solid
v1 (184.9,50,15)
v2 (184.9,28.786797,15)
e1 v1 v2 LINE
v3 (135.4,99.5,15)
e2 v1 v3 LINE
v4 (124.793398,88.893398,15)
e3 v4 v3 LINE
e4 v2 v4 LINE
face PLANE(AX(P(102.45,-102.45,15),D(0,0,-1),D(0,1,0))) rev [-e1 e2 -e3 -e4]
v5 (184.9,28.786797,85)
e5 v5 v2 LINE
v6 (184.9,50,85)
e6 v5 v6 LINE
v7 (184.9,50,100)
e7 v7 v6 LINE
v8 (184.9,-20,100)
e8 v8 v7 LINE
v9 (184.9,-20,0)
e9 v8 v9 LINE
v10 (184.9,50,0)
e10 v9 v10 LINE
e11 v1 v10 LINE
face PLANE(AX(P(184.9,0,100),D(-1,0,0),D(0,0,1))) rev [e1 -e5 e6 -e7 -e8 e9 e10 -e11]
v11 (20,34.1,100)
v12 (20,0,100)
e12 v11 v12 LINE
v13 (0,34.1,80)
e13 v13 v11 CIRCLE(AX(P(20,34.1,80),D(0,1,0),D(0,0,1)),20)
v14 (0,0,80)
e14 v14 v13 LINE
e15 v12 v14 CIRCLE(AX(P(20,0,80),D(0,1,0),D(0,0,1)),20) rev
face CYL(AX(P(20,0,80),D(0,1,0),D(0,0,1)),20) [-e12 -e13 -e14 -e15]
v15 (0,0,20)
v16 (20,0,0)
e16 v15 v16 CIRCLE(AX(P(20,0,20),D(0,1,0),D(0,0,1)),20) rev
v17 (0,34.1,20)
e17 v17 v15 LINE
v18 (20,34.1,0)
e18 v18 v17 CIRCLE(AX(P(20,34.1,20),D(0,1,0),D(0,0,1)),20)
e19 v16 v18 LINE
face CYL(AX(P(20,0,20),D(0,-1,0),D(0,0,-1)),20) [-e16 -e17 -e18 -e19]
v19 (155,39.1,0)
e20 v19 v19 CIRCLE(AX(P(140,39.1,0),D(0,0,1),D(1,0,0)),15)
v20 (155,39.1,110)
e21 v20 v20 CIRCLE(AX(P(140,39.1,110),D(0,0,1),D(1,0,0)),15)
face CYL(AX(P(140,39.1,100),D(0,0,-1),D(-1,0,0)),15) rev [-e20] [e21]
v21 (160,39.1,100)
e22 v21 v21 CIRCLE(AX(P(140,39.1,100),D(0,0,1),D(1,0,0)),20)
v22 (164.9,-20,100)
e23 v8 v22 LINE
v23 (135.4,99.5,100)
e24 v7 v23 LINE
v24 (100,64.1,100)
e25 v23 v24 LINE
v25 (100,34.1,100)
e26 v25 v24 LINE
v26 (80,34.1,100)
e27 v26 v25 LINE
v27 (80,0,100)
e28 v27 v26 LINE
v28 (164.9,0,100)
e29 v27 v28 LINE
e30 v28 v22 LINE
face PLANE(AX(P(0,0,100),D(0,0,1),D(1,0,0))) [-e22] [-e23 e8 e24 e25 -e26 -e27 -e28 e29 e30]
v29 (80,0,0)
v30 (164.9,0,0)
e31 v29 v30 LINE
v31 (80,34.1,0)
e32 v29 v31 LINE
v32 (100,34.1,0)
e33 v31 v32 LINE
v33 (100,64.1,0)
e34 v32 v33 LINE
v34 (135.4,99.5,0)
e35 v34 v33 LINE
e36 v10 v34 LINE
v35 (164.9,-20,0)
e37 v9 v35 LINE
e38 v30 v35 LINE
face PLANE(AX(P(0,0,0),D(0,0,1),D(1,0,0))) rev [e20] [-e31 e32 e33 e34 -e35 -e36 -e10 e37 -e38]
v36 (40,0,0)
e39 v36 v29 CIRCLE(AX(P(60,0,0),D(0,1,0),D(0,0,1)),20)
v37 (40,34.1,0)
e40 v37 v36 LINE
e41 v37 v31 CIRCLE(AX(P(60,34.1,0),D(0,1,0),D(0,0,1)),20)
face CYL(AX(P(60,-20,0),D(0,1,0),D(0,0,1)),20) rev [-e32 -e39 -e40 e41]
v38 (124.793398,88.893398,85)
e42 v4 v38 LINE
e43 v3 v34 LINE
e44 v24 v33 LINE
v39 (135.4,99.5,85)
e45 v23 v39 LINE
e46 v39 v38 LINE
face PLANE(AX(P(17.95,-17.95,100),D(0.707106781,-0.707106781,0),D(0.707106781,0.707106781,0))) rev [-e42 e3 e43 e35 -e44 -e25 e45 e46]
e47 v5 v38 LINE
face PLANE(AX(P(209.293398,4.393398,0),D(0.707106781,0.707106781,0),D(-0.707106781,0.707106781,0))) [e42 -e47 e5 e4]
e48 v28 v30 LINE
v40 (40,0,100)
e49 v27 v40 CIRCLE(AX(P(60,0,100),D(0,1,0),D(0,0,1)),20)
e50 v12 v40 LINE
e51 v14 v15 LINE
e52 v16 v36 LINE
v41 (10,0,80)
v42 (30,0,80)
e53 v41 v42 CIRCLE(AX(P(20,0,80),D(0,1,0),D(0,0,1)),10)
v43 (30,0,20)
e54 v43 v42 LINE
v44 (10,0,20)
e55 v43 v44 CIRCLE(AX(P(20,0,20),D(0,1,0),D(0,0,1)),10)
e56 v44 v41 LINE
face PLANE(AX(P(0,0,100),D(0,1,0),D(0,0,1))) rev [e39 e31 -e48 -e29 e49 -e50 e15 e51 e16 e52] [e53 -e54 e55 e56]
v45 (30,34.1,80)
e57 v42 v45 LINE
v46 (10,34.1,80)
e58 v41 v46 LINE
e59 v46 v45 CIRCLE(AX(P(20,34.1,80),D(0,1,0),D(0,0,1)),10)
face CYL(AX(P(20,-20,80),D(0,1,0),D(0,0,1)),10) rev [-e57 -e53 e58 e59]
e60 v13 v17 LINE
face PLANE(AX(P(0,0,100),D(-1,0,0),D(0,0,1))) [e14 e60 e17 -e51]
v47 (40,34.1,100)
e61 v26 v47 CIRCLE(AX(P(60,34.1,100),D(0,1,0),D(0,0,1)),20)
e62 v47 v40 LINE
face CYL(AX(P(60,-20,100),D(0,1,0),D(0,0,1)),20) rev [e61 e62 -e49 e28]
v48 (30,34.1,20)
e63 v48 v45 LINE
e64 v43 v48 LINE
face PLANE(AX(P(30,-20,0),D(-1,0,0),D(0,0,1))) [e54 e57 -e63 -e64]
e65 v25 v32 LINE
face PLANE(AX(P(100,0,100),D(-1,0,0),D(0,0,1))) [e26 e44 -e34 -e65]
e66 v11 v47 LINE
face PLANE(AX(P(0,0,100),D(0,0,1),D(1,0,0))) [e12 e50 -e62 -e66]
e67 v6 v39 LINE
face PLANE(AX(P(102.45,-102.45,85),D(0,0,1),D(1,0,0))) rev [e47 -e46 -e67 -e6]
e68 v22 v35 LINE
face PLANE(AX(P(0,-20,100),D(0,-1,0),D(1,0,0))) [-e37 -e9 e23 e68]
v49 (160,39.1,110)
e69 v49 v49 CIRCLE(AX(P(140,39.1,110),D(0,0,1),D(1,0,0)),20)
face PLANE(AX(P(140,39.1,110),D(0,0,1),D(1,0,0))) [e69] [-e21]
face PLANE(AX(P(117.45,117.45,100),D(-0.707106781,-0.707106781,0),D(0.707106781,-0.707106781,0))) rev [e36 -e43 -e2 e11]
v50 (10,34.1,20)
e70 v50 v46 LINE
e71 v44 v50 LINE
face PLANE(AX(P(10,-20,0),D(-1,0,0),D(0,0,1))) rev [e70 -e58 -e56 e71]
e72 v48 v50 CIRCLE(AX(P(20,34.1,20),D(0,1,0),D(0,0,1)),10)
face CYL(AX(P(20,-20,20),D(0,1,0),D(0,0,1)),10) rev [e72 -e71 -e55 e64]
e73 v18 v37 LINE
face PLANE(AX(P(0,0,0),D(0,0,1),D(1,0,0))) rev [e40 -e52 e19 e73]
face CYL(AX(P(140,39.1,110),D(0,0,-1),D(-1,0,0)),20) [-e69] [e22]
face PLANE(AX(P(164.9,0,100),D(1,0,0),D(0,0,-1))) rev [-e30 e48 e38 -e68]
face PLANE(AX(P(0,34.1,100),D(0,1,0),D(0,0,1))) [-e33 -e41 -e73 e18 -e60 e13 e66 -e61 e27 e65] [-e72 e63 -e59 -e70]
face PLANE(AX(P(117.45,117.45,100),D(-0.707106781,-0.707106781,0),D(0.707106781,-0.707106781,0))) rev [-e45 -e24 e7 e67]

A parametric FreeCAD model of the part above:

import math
import FreeCAD as App
import Part
import Sketcher
from FreeCAD import Vector
Q = App.Units.Quantity


def edges_at(feature, points):
    """Names of the edges that pass closest to the given points."""
    edges = feature.Shape.Edges
    near = lambda p: min(range(len(edges)), key=lambda i: edges[i].distToShape(Part.Vertex(*p))[0])
    return sorted({f"Edge{near(p) + 1}" for p in points})


def add_polygon(sketch, points):
    """Adds a closed chain of lines whose ends are joined by coincident constraints."""
    first, n = sketch.GeometryCount, len(points)
    for a, b in zip(points, points[1:] + points[:1]):
        sketch.addGeometry(Part.LineSegment(App.Vector(*a, 0), App.Vector(*b, 0)), False)
    for i in range(n):
        sketch.addConstraint(Sketcher.Constraint("Coincident", first + i, 2, first + (i + 1) % n, 1))

doc = App.newDocument("Part")
body = doc.addObject("PartDesign::Body", "Body")

# Sketch on XY plane
sketch1 = doc.addObject("Sketcher::SketchObject", "Sketch")
body.addObject(sketch1)
sketch1.AttachmentSupport = (doc.XY_Plane, [""])
sketch1.MapMode = "FlatFace"
add_polygon(sketch1, [(0, 34), (0, 0), (165, 0), (165, -20), (185, -20), (185, 50), (135, 100), (100, 64), (100, 34)])  # lines 0-8
sketch1.addGeometry(Part.ArcOfCircle(Part.Circle(Vector(140, 39, 0), Vector(0, 0, 1), 15), math.radians(0), math.radians(108)), False)  # 9
sketch1.addGeometry(Part.ArcOfCircle(Part.Circle(Vector(140, 39, 0), Vector(0, 0, 1), 15), math.radians(-19.47), math.radians(0)), False)  # 10
sketch1.addGeometry(Part.ArcOfCircle(Part.Circle(Vector(140, 39, 0), Vector(0, 0, 1), 15), math.radians(-161), math.radians(-19)), False)  # 11
sketch1.addGeometry(Part.ArcOfCircle(Part.Circle(Vector(140, 39, 0), Vector(0, 0, 1), 15), math.radians(108), math.radians(199)), False)  # 12
sketch1.addConstraint(Sketcher.Constraint("Tangent", 9, 1, 10, 2))
sketch1.addConstraint(Sketcher.Constraint("Tangent", 10, 1, 11, 2))
sketch1.addConstraint(Sketcher.Constraint("Tangent", 11, 1, 12, 2))
sketch1.addConstraint(Sketcher.Constraint("Tangent", 12, 1, 9, 2))
sketch1.addConstraint(Sketcher.Constraint("Vertical", 0))
sketch1.addConstraint(Sketcher.Constraint("Horizontal", 1))
sketch1.addConstraint(Sketcher.Constraint("Vertical", 2))
sketch1.addConstraint(Sketcher.Constraint("Horizontal", 3))
sketch1.addConstraint(Sketcher.Constraint("Vertical", 4))
sketch1.addConstraint(Sketcher.Constraint("Vertical", 7))
sketch1.addConstraint(Sketcher.Constraint("Horizontal", 8))
sketch1.addConstraint(Sketcher.Constraint("Coincident", 0, 2, -1, 1))
sketch1.addConstraint(Sketcher.Constraint("Equal", 9, 10))
sketch1.addConstraint(Sketcher.Constraint("Perpendicular", 5, 6))
sketch1.addConstraint(Sketcher.Constraint("Horizontal", 12, 3, 9, 1))
sketch1.addConstraint(Sketcher.Constraint("Horizontal", 8, 2, 10, 1))
sketch1.addConstraint(Sketcher.Constraint("Horizontal", 10, 1, 11, 1))
sketch1.addConstraint(Sketcher.Constraint("Vertical", 5, 2, 12, 1))
sketch1.addConstraint(Sketcher.Constraint("Equal", 3, 2))
sketch1.addConstraint(Sketcher.Constraint("Radius", 9, 15.0))
sketch1.addConstraint(Sketcher.Constraint("DistanceX", 3, 1, 3, 2, 20.0))
sketch1.addConstraint(Sketcher.Constraint("DistanceX", 8, 2, 8, 1, 100.0))
sketch1.addConstraint(Sketcher.Constraint("DistanceY", 4, 1, 4, 2, 70.0))
sketch1.addConstraint(Sketcher.Constraint("DistanceY", 7, 2, 7, 1, 30.0))
sketch1.addConstraint(Sketcher.Constraint("Angle", 5, Q("135 deg")))
sketch1.addConstraint(Sketcher.Constraint("DistanceX", 1, 1, 1, 2, 164.9))
sketch1.addConstraint(Sketcher.Constraint("DistanceY", 0, 2, 0, 1, 34.1))
sketch1.addConstraint(Sketcher.Constraint("DistanceX", -1, 1, 9, 3, 140.0))
sketch1.addConstraint(Sketcher.Constraint("DistanceY", 9, 3, 6, 2, 25.0))
pad1 = doc.addObject("PartDesign::Pad", "Pad")
body.addObject(pad1)
pad1.Profile = sketch1
pad1.Length = 100

# Sketch on an angled plane
sketch2 = doc.addObject("Sketcher::SketchObject", "Sketch001")
body.addObject(sketch2)
sketch2.Placement = App.Placement(Vector(17.95, -17.95, 0), App.Rotation(Vector(0, 0, 1), Vector(0.707106781, 0.707106781, 0), Vector(-0.707106781, 0.707106781, 0), "ZXY"))
add_polygon(sketch2, [(15, 166), (15, 151), (85, 151), (85, 166)])  # lines 0-3
sketch2.addConstraint(Sketcher.Constraint("Vertical", 0))
sketch2.addConstraint(Sketcher.Constraint("Horizontal", 1))
sketch2.addConstraint(Sketcher.Constraint("Vertical", 2))
sketch2.addConstraint(Sketcher.Constraint("Horizontal", 3))
sketch2.addConstraint(Sketcher.Constraint("DistanceX", 1, 1, 1, 2, 70.0))
sketch2.addConstraint(Sketcher.Constraint("DistanceY", 0, 2, 0, 1, 15.0))
sketch2.addConstraint(Sketcher.Constraint("DistanceX", -1, 1, 0, 2, 15.0))
sketch2.addConstraint(Sketcher.Constraint("DistanceY", -1, 1, 0, 2, 151.099383))
pocket1 = doc.addObject("PartDesign::Pocket", "Pocket")
body.addObject(pocket1)
pocket1.Profile = sketch2
pocket1.Type = "ThroughAll"
pocket1.Midplane = True

# Sketch on XZ plane
sketch3 = doc.addObject("Sketcher::SketchObject", "Sketch002")
body.addObject(sketch3)
sketch3.AttachmentSupport = (doc.XZ_Plane, [""])
sketch3.MapMode = "FlatFace"
sketch3.AttachmentOffset = App.Placement(Vector(0, 0, -34.1), App.Rotation())
sketch3.addGeometry(Part.Circle(Vector(60, 0, 0), Vector(0, 0, 1), 20), False)
sketch3.addGeometry(Part.Circle(Vector(60, 100, 0), Vector(0, 0, 1), 20), False)
sketch3.addConstraint(Sketcher.Constraint("Equal", 0, 1))
sketch3.addConstraint(Sketcher.Constraint("PointOnObject", 0, 3, -1))
sketch3.addConstraint(Sketcher.Constraint("Vertical", 0, 3, 1, 3))
sketch3.addConstraint(Sketcher.Constraint("Diameter", 0, 40.0))
sketch3.addConstraint(Sketcher.Constraint("DistanceX", -1, 1, 0, 3, 60.0))
sketch3.addConstraint(Sketcher.Constraint("DistanceY", -1, 1, 1, 3, 100.0))
pocket2 = doc.addObject("PartDesign::Pocket", "Pocket001")
body.addObject(pocket2)
pocket2.Profile = sketch3
pocket2.Type = "ThroughAll"
pocket2.Midplane = True

# Sketch on XZ plane
sketch4 = doc.addObject("Sketcher::SketchObject", "Sketch003")
body.addObject(sketch4)
sketch4.AttachmentSupport = (doc.XZ_Plane, [""])
sketch4.MapMode = "FlatFace"
sketch4.AttachmentOffset = App.Placement(Vector(0, 0, -34.1), App.Rotation())
sketch4.addGeometry(Part.LineSegment(Vector(30, 80, 0), Vector(30, 20, 0)), False)
sketch4.addGeometry(Part.ArcOfCircle(Part.Circle(Vector(20, 20, 0), Vector(0, 0, 1), 10), math.radians(180), math.radians(360)), False)
sketch4.addGeometry(Part.LineSegment(Vector(10, 20, 0), Vector(10, 80, 0)), False)
sketch4.addGeometry(Part.ArcOfCircle(Part.Circle(Vector(20, 80, 0), Vector(0, 0, 1), 10), math.radians(0), math.radians(180)), False)
sketch4.addConstraint(Sketcher.Constraint("Tangent", 0, 2, 1, 2))
sketch4.addConstraint(Sketcher.Constraint("Tangent", 1, 1, 2, 1))
sketch4.addConstraint(Sketcher.Constraint("Tangent", 2, 2, 3, 2))
sketch4.addConstraint(Sketcher.Constraint("Tangent", 3, 1, 0, 1))
sketch4.addConstraint(Sketcher.Constraint("Vertical", 0))
sketch4.addConstraint(Sketcher.Constraint("Vertical", 2))
sketch4.addConstraint(Sketcher.Constraint("Radius", 1, 10.0))
sketch4.addConstraint(Sketcher.Constraint("DistanceY", 0, 2, 0, 1, 60.0))
sketch4.addConstraint(Sketcher.Constraint("DistanceX", -1, 1, 1, 3, 20.0))
sketch4.addConstraint(Sketcher.Constraint("DistanceY", -1, 1, 1, 3, 20.0))
pocket3 = doc.addObject("PartDesign::Pocket", "Pocket002")
body.addObject(pocket3)
pocket3.Profile = sketch4
pocket3.Type = "ThroughAll"
pocket3.Midplane = True
doc.recompute()

fillet = doc.addObject("PartDesign::Fillet", "Fillet")
body.addObject(fillet)
fillet.Base = (pocket3, edges_at(pocket3, [(0, 17.05, 0), (0, 17.05, 100)]))
fillet.Radius = 20

# Sketch on XY plane
sketch5 = doc.addObject("Sketcher::SketchObject", "Sketch004")
body.addObject(sketch5)
sketch5.AttachmentSupport = (doc.XY_Plane, [""])
sketch5.MapMode = "FlatFace"
sketch5.AttachmentOffset = App.Placement(Vector(0, 0, 100), App.Rotation())
sketch5.addGeometry(Part.Circle(Vector(140, 39, 0), Vector(0, 0, 1), 20), False)
sketch5.addConstraint(Sketcher.Constraint("Diameter", 0, 40.0))
sketch5.addConstraint(Sketcher.Constraint("DistanceX", -1, 1, 0, 3, 140.0))
sketch5.addConstraint(Sketcher.Constraint("DistanceY", -1, 1, 0, 3, 39.1))
pad2 = doc.addObject("PartDesign::Pad", "Pad001")
body.addObject(pad2)
pad2.Profile = sketch5
pad2.Length = 10

# Sketch on XY plane
sketch6 = doc.addObject("Sketcher::SketchObject", "Sketch005")
body.addObject(sketch6)
sketch6.AttachmentSupport = (doc.XY_Plane, [""])
sketch6.MapMode = "FlatFace"
sketch6.AttachmentOffset = App.Placement(Vector(0, 0, 110), App.Rotation())
sketch6.addGeometry(Part.Circle(Vector(140, 39, 0), Vector(0, 0, 1), 15), False)
sketch6.addConstraint(Sketcher.Constraint("Diameter", 0, 30.0))
sketch6.addConstraint(Sketcher.Constraint("DistanceX", -1, 1, 0, 3, 140.0))
sketch6.addConstraint(Sketcher.Constraint("DistanceY", -1, 1, 0, 3, 39.1))
pocket4 = doc.addObject("PartDesign::Pocket", "Pocket003")
body.addObject(pocket4)
pocket4.Profile = sketch6
pocket4.Type = "ThroughAll"
pocket4.Midplane = True

doc.recompute()
